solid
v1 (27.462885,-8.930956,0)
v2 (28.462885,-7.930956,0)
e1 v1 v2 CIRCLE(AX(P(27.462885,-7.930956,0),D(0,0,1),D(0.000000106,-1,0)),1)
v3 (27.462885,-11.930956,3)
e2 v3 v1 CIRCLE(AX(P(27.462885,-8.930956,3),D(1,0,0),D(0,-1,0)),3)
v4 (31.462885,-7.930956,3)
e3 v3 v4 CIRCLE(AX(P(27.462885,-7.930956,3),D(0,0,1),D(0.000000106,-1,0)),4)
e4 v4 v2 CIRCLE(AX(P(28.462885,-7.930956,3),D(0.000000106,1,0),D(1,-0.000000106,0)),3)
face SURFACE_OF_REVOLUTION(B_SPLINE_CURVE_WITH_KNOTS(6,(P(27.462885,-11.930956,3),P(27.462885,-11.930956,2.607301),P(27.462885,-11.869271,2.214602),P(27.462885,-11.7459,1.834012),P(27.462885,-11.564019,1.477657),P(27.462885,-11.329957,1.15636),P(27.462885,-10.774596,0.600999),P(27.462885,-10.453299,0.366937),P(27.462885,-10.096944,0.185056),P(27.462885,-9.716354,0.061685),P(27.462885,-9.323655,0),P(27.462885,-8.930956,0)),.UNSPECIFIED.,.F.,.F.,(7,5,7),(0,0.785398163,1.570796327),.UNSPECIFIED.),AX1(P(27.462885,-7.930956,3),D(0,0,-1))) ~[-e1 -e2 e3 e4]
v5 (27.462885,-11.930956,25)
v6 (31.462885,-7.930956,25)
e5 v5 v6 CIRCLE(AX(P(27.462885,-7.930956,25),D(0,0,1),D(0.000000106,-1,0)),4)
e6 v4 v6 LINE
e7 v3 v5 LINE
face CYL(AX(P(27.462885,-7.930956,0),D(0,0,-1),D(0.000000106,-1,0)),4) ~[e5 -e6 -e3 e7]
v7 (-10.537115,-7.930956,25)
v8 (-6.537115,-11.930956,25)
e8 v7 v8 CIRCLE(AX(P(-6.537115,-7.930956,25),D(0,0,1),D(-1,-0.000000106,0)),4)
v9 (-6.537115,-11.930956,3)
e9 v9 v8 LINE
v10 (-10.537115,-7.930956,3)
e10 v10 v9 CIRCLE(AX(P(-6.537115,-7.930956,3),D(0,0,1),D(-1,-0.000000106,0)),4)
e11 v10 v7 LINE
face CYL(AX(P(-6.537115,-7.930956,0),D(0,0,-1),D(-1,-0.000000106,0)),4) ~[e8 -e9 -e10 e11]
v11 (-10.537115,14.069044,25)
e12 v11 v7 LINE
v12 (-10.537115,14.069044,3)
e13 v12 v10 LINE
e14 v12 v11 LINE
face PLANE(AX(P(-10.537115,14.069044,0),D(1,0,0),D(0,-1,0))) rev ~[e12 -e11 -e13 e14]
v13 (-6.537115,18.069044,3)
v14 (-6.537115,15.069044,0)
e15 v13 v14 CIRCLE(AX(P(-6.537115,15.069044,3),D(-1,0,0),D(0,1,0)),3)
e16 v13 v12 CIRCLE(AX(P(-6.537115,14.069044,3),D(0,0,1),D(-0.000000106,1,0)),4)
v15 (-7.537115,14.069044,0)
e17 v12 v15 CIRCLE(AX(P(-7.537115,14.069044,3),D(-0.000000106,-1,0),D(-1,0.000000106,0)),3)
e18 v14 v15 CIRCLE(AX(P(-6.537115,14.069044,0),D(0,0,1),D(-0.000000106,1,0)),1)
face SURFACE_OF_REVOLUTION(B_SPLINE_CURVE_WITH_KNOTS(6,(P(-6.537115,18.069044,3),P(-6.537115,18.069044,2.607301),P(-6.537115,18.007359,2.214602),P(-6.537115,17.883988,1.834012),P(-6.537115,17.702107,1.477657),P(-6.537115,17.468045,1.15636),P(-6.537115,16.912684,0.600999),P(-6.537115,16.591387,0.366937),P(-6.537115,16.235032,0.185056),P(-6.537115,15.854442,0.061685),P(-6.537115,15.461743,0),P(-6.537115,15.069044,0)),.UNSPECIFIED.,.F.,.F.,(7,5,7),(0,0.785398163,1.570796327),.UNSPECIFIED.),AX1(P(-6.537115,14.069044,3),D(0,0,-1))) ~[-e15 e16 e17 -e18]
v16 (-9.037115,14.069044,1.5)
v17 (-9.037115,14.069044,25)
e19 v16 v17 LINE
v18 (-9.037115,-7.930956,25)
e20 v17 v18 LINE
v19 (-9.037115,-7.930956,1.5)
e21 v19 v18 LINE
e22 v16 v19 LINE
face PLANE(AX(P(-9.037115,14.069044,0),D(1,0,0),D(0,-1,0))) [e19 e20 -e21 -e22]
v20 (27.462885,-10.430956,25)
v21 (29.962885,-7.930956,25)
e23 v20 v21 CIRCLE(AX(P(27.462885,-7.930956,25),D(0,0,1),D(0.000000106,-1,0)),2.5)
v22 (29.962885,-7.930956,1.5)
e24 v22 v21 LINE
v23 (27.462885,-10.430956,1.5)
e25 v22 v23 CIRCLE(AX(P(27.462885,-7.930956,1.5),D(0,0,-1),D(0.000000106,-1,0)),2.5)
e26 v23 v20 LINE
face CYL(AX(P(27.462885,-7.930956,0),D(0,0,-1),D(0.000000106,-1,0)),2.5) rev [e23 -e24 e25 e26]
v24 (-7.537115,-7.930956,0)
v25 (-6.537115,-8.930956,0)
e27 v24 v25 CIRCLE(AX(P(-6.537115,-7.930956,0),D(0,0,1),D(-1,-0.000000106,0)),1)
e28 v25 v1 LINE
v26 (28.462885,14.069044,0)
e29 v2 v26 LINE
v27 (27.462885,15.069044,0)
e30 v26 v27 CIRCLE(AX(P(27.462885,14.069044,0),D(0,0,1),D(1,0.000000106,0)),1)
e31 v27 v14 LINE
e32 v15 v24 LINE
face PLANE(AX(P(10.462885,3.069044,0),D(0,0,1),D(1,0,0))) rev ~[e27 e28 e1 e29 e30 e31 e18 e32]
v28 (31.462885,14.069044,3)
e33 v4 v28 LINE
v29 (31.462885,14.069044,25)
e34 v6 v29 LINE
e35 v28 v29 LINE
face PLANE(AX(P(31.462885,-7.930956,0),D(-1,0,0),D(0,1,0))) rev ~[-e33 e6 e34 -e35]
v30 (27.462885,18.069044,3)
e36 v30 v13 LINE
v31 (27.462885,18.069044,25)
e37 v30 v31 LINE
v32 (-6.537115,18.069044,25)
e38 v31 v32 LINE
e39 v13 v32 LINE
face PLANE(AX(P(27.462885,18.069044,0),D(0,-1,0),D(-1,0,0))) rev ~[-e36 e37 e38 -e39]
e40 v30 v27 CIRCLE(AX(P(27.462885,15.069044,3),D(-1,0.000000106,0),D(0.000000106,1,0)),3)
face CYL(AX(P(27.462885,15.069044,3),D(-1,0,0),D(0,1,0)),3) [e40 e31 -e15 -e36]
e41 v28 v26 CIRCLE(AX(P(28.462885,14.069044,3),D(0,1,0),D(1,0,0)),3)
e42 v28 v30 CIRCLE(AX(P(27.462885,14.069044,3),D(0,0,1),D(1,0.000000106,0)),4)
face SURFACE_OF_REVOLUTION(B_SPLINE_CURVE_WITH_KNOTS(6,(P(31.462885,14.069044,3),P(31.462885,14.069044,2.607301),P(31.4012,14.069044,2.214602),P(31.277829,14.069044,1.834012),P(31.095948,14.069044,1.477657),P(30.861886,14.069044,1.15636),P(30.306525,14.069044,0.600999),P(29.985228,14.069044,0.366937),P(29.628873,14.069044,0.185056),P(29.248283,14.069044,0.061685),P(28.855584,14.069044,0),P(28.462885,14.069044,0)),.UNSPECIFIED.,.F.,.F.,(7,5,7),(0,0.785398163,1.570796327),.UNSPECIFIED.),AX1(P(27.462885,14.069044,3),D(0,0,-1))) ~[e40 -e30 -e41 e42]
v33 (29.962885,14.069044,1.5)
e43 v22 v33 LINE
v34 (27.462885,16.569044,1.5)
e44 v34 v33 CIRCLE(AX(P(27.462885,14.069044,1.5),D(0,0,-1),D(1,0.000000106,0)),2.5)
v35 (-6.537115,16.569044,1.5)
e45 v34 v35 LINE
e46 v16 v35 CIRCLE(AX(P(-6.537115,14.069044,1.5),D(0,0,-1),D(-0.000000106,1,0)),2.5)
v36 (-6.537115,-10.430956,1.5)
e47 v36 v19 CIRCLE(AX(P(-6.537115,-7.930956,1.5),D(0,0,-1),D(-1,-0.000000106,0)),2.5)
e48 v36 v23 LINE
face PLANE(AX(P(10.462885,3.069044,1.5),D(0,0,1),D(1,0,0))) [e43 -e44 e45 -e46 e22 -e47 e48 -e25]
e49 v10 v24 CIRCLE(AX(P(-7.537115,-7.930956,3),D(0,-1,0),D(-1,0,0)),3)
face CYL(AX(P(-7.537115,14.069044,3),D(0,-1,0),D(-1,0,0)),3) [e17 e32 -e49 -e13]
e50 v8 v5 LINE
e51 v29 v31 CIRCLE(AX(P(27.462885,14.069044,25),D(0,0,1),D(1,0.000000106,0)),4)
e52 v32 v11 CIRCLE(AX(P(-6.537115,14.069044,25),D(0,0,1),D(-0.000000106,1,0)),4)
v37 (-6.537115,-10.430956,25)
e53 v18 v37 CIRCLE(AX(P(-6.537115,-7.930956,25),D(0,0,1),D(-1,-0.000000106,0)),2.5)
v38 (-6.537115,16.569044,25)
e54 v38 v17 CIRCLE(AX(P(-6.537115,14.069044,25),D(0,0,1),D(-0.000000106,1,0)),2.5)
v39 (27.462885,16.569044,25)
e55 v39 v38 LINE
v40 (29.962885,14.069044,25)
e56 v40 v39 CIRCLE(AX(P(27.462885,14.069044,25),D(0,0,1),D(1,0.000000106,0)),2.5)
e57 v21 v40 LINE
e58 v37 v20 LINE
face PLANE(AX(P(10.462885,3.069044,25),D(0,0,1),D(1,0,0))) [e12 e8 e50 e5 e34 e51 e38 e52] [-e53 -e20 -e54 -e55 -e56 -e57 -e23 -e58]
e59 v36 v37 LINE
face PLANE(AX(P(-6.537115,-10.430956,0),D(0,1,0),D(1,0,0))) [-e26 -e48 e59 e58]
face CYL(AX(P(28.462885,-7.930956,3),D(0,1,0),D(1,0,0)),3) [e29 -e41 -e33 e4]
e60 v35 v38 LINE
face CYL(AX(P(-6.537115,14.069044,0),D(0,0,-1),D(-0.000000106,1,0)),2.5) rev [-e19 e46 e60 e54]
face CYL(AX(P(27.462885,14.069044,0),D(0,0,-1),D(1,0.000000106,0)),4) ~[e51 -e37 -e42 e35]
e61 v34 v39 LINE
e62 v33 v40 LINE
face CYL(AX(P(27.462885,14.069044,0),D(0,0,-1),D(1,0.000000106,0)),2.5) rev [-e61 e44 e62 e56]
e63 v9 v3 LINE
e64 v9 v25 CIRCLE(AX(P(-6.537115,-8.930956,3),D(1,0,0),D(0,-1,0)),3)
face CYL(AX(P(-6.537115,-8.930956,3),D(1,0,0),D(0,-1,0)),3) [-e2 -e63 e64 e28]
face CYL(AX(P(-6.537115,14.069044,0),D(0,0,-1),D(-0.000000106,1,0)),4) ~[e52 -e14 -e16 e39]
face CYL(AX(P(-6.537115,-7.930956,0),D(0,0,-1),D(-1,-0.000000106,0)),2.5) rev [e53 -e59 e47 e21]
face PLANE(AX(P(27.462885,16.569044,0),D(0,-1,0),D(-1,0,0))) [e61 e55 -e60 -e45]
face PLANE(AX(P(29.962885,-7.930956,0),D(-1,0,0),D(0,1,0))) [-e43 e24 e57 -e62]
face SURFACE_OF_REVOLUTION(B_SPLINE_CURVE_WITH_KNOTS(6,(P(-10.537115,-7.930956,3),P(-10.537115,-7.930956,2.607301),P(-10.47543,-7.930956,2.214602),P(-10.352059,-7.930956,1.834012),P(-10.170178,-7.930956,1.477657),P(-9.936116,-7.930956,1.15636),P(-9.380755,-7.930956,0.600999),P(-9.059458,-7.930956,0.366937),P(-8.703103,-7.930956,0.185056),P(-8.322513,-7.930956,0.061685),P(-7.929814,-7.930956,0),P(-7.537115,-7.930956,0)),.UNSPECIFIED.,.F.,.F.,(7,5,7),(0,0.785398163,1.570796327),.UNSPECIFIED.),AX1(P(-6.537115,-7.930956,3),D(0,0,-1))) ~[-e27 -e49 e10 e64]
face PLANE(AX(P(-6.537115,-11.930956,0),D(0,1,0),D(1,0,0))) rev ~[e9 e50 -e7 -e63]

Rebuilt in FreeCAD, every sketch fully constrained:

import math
import FreeCAD as App
import Part
import Sketcher

V = App.Vector
Q = App.Units.Quantity


def edges_at(feature, points):
    """Names of the edges that pass closest to the given points."""
    edges = feature.Shape.Edges
    near = lambda p: min(range(len(edges)), key=lambda i: edges[i].distToShape(Part.Vertex(*p))[0])
    return sorted({f"Edge{near(p) + 1}" for p in points})


def faces_at(feature, points):
    """Names of the faces that lie closest to the given points."""
    faces = feature.Shape.Faces
    near = lambda p: min(range(len(faces)), key=lambda i: faces[i].distToShape(Part.Vertex(*p))[0])
    return sorted({f"Face{near(p) + 1}" for p in points})

doc = App.newDocument("Part")
body = doc.addObject("PartDesign::Body", "Body")

sketch1 = body.newObject("Sketcher::SketchObject", "Sketch")
sketch1.AttachmentSupport = (doc.getObject("XY_Plane"), [""])
sketch1.MapMode = "FlatFace"
sketch1.addGeometry([
    Part.LineSegment(V(27.5, 18.1, 0), V(-6.5, 18.1, 0)),
    Part.ArcOfCircle(Part.Circle(V(-6.5, 14.1, 0), V(0, 0, 1), 4), math.radians(90), math.radians(180)),
    Part.LineSegment(V(-10.5, 14.1, 0), V(-10.5, -7.9, 0)),
    Part.ArcOfCircle(Part.Circle(V(-6.5, -7.9, 0), V(0, 0, 1), 4), math.radians(-180), math.radians(-90)),
    Part.LineSegment(V(-6.5, -11.9, 0), V(27.5, -11.9, 0)),
    Part.ArcOfCircle(Part.Circle(V(27.5, -7.9, 0), V(0, 0, 1), 4), math.radians(-90), math.radians(0)),
    Part.LineSegment(V(31.5, -7.9, 0), V(31.5, 14.1, 0)),
    Part.ArcOfCircle(Part.Circle(V(27.5, 14.1, 0), V(0, 0, 1), 4), math.radians(0), math.radians(90)),
], False)
sketch1.addConstraint([
    Sketcher.Constraint("Tangent", 0, 2, 1, 1),
    Sketcher.Constraint("Tangent", 1, 2, 2, 1),
    Sketcher.Constraint("Tangent", 2, 2, 3, 1),
    Sketcher.Constraint("Tangent", 3, 2, 4, 1),
    Sketcher.Constraint("Tangent", 4, 2, 5, 1),
    Sketcher.Constraint("Tangent", 5, 2, 6, 1),
    Sketcher.Constraint("Tangent", 6, 2, 7, 1),
    Sketcher.Constraint("Tangent", 7, 2, 0, 1),
    Sketcher.Constraint("Horizontal", 0),
    Sketcher.Constraint("Vertical", 2),
    Sketcher.Constraint("Horizontal", 4),
    Sketcher.Constraint("Vertical", 6),
    Sketcher.Constraint("Equal", 1, 3),
    Sketcher.Constraint("Equal", 3, 5),
    Sketcher.Constraint("Equal", 5, 7),
    Sketcher.Constraint("Radius", 1, Q("4 mm")),
    Sketcher.Constraint("DistanceX", 0, 2, 0, 1, Q("34 mm")),
    Sketcher.Constraint("DistanceY", 2, 2, 2, 1, Q("22 mm")),
    Sketcher.Constraint("DistanceX", 1, 3, -1, 1, Q("6.537115 mm")),
    Sketcher.Constraint("DistanceY", -1, 1, 1, 3, Q("14.069044 mm")),
])
pad1 = body.newObject("PartDesign::Pad", "Pad")
pad1.Profile = sketch1
pad1.Length = 25
doc.recompute()

thickness = body.newObject("PartDesign::Thickness", "Thickness")
thickness.Base = (pad1, faces_at(pad1, [(10.463, 3.069, 25)]))
thickness.Value = 1.5
thickness.Reversed = True
thickness.Join = "Arc"
doc.recompute()

fillet = body.newObject("PartDesign::Fillet", "Fillet")
fillet.Base = (thickness, edges_at(thickness, [(10.463, -11.931, 0)]))
fillet.Radius = 3

doc.recompute()
